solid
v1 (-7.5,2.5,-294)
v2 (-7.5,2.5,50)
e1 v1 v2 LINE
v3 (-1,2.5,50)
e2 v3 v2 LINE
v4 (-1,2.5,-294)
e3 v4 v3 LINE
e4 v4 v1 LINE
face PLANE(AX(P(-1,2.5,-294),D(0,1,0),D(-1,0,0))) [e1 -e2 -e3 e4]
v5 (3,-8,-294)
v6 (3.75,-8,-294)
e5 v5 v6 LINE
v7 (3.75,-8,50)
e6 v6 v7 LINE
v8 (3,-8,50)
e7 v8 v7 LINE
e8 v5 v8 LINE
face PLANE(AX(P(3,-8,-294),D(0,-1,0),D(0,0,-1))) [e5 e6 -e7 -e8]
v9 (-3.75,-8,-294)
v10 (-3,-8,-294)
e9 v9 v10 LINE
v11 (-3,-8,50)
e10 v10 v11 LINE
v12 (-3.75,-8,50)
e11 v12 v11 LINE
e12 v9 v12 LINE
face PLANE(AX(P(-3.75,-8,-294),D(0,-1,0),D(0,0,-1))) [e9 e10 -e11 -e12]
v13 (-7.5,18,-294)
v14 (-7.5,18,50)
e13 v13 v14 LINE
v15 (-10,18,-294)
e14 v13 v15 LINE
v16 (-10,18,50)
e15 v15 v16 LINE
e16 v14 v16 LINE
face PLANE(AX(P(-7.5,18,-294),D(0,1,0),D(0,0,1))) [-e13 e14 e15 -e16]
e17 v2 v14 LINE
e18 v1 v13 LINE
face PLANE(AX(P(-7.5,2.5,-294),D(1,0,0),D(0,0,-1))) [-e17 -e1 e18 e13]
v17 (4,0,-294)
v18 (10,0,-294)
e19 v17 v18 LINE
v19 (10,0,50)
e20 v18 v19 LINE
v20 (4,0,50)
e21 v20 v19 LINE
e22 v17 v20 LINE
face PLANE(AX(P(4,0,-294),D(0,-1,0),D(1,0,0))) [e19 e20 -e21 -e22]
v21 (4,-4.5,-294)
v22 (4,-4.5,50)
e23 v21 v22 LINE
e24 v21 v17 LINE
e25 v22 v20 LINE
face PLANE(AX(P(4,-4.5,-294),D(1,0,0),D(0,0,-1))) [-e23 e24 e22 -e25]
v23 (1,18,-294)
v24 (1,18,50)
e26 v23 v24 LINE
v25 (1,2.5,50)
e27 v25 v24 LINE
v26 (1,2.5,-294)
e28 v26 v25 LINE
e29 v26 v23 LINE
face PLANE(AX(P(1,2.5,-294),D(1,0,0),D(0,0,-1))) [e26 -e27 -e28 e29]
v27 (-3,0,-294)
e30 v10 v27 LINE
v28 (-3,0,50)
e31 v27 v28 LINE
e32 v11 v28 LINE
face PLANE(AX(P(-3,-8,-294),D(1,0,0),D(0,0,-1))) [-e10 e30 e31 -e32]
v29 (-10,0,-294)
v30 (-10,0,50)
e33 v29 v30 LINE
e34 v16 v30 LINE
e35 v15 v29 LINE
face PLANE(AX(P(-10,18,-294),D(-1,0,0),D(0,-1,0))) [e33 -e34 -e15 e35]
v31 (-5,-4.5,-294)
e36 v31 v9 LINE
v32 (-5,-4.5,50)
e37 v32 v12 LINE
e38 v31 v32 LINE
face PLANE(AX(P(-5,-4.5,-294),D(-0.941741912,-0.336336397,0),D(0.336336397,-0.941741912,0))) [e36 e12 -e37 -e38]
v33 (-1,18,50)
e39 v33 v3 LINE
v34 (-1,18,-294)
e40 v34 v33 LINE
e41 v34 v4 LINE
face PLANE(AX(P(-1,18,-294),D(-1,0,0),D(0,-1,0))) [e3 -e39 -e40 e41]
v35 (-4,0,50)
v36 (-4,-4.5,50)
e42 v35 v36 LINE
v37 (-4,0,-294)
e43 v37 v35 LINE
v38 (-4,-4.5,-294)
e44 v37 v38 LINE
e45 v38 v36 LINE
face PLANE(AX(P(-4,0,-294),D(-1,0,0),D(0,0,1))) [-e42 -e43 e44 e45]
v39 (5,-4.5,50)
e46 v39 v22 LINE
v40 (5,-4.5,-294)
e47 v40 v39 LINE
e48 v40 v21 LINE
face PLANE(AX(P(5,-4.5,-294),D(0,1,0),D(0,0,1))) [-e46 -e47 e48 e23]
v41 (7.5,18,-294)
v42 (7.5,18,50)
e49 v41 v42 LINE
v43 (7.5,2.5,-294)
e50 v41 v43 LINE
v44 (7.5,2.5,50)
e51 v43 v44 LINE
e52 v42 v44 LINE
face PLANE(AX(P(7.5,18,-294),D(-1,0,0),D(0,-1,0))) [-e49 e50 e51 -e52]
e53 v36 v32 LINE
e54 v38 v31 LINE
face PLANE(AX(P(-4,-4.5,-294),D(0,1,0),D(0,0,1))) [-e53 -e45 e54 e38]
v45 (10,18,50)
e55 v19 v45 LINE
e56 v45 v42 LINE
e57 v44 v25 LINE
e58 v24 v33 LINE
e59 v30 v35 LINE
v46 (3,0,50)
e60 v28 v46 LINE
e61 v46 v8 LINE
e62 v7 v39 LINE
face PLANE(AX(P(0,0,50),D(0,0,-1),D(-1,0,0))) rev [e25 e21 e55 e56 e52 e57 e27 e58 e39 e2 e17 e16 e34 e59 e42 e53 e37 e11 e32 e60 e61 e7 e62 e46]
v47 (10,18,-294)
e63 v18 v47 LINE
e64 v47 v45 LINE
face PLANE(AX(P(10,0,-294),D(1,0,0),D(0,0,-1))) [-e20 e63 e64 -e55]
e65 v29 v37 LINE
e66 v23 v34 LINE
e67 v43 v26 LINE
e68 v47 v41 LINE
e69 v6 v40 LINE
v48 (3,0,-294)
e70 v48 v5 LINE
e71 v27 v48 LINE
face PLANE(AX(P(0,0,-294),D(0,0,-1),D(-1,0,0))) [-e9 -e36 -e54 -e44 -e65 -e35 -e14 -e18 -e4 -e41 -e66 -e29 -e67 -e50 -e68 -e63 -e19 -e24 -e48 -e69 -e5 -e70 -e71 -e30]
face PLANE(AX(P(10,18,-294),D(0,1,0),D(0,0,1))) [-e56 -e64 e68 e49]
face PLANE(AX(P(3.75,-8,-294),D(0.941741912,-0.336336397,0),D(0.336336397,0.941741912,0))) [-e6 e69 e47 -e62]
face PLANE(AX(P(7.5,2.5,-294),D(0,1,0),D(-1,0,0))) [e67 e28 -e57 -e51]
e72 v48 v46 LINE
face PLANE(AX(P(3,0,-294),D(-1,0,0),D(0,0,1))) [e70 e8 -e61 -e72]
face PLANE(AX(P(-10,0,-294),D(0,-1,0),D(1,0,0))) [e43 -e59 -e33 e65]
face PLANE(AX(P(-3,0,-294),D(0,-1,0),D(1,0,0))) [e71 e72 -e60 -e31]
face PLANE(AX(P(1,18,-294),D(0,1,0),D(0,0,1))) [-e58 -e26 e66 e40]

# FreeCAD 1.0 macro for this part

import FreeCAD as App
import Part
import Sketcher
from FreeCAD import Vector
Q = App.Units.Quantity


def add_polygon(sketch, points):
    """Adds a closed chain of lines whose ends are joined by coincident constraints."""
    first, n = sketch.GeometryCount, len(points)
    for a, b in zip(points, points[1:] + points[:1]):
        sketch.addGeometry(Part.LineSegment(App.Vector(*a, 0), App.Vector(*b, 0)), False)
    for i in range(n):
        sketch.addConstraint(Sketcher.Constraint("Coincident", first + i, 2, first + (i + 1) % n, 1))

doc = App.newDocument("Part")
body = doc.addObject("PartDesign::Body", "Body")

# Sketch on XY plane
sketch1 = doc.addObject("Sketcher::SketchObject", "Sketch")
body.addObject(sketch1)
sketch1.AttachmentSupport = (doc.XY_Plane, [""])
sketch1.MapMode = "FlatFace"
sketch1.AttachmentOffset = App.Placement(Vector(0, 0, 50), App.Rotation())
add_polygon(sketch1, [(-1, 2.5), (-7.5, 2.5), (-7.5, 18), (-10, 18), (-10, 0), (-4, 0), (-4, -4.5), (-5, -4.5), (-3.75, -8), (-3, -8), (-3, 0), (3, 0), (3, -8), (3.75, -8), (5, -4.5), (4, -4.5), (4, 0), (10, 0), (10, 18), (7.5, 18), (7.5, 2.5), (1, 2.5), (1, 18), (-1, 18)])  # lines 0-23
sketch1.addConstraint(Sketcher.Constraint("Horizontal", 0))
sketch1.addConstraint(Sketcher.Constraint("Vertical", 1))
sketch1.addConstraint(Sketcher.Constraint("Horizontal", 2))
sketch1.addConstraint(Sketcher.Constraint("Vertical", 3))
sketch1.addConstraint(Sketcher.Constraint("Horizontal", 4))
sketch1.addConstraint(Sketcher.Constraint("Vertical", 5))
sketch1.addConstraint(Sketcher.Constraint("Horizontal", 6))
sketch1.addConstraint(Sketcher.Constraint("Horizontal", 8))
sketch1.addConstraint(Sketcher.Constraint("Vertical", 9))
sketch1.addConstraint(Sketcher.Constraint("Horizontal", 10))
sketch1.addConstraint(Sketcher.Constraint("Vertical", 11))
sketch1.addConstraint(Sketcher.Constraint("Horizontal", 12))
sketch1.addConstraint(Sketcher.Constraint("Horizontal", 14))
sketch1.addConstraint(Sketcher.Constraint("Vertical", 15))
sketch1.addConstraint(Sketcher.Constraint("Horizontal", 16))
sketch1.addConstraint(Sketcher.Constraint("Vertical", 17))
sketch1.addConstraint(Sketcher.Constraint("Horizontal", 18))
sketch1.addConstraint(Sketcher.Constraint("Vertical", 19))
sketch1.addConstraint(Sketcher.Constraint("Horizontal", 20))
sketch1.addConstraint(Sketcher.Constraint("Vertical", 21))
sketch1.addConstraint(Sketcher.Constraint("Horizontal", 22))
sketch1.addConstraint(Sketcher.Constraint("Vertical", 23))
sketch1.addConstraint(Sketcher.Constraint("Symmetric", 9, 2, 10, 2, -1, 1))
sketch1.addConstraint(Sketcher.Constraint("Symmetric", 4, 2, 15, 2, -1, 1))
sketch1.addConstraint(Sketcher.Constraint("Symmetric", 7, 2, 12, 2, -2))
sketch1.addConstraint(Sketcher.Constraint("Symmetric", 6, 2, 13, 2, -2))
sketch1.addConstraint(Sketcher.Constraint("Symmetric", 3, 2, 16, 2, -2))
sketch1.addConstraint(Sketcher.Constraint("Symmetric", 1, 2, 18, 2, -2))
sketch1.addConstraint(Sketcher.Constraint("Symmetric", 20, 2, 23, 2, -2))
sketch1.addConstraint(Sketcher.Constraint("Horizontal", 18, 2, 21, 2))
sketch1.addConstraint(Sketcher.Constraint("Equal", 4, 10))
sketch1.addConstraint(Sketcher.Constraint("DistanceX", 4, 1, 4, 2, Q("6 mm")))
sketch1.addConstraint(Sketcher.Constraint("DistanceX", 6, 2, 6, 1, Q("1 mm")))
sketch1.addConstraint(Sketcher.Constraint("DistanceX", 22, 2, 22, 1, Q("2 mm")))
sketch1.addConstraint(Sketcher.Constraint("DistanceY", 3, 2, 3, 1, Q("18 mm")))
sketch1.addConstraint(Sketcher.Constraint("DistanceY", 9, 1, 9, 2, Q("8 mm")))
sketch1.addConstraint(Sketcher.Constraint("DistanceX", 0, 2, 0, 1, Q("6.5 mm")))
sketch1.addConstraint(Sketcher.Constraint("DistanceX", 2, 2, 2, 1, Q("2.5 mm")))
sketch1.addConstraint(Sketcher.Constraint("DistanceY", 1, 1, 1, 2, Q("15.5 mm")))
sketch1.addConstraint(Sketcher.Constraint("DistanceY", 5, 2, 5, 1, Q("4.5 mm")))
sketch1.addConstraint(Sketcher.Constraint("DistanceX", 8, 1, 8, 2, Q("0.75 mm")))
pad1 = doc.addObject("PartDesign::Pad", "Pad")
body.addObject(pad1)
pad1.Profile = sketch1
pad1.Length = 344
pad1.Reversed = True

doc.recompute()
